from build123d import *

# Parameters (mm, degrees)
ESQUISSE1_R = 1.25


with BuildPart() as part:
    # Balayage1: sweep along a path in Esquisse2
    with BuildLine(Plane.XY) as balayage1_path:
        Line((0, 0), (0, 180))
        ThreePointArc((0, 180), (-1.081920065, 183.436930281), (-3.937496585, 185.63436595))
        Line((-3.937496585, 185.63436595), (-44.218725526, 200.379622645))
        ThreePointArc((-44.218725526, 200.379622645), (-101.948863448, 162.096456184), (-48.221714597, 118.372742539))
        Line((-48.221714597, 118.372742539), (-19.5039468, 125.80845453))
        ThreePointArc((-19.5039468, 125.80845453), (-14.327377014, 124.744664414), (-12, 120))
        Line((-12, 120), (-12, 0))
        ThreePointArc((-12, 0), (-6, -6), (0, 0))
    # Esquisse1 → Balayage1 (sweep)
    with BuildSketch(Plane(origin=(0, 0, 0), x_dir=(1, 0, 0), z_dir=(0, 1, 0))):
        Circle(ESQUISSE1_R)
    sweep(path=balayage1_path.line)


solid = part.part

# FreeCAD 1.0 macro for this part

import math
import FreeCAD as App
import Part
import Sketcher
Q = App.Units.Quantity

doc = App.newDocument("Part")
params = doc.addObject("Spreadsheet::Sheet", "Params")
for row, (alias, value) in enumerate([
    ("sketch1_diameter", "2.5 mm"),
    ("sketch2_radius", "6 mm"),
    ("sketch2_radius2", "43 mm"),
    ("sketch2_height", "180 mm"),
    ("sketch2_height2", "120 mm"),
], start=1):
    params.set(f"A{row}", alias)
    params.set(f"B{row}", "=" + value)
    params.setAlias(f"B{row}", alias)

body = doc.addObject("PartDesign::Body", "Body")

# Sketch on XZ plane
sketch1 = doc.addObject("Sketcher::SketchObject", "Sketch")
body.addObject(sketch1)
sketch1.AttachmentSupport = (doc.XZ_Plane, [""])
sketch1.MapMode = "FlatFace"
sketch1.addGeometry(Part.Circle(App.Vector(0, 0, 0), App.Vector(0, 0, 1), 1.25), False)
sketch1.addConstraint(Sketcher.Constraint("Coincident", 0, 3, -1, 1))
sketch1.addConstraint(Sketcher.Constraint("Diameter", 0, Q("2.5 mm")))
sketch1.setExpression("Constraints[1]", "Params.sketch1_diameter")

# Sketch on XY plane
sketch2 = doc.addObject("Sketcher::SketchObject", "Sketch001")
body.addObject(sketch2)
sketch2.AttachmentSupport = (doc.XY_Plane, [""])
sketch2.MapMode = "FlatFace"
sketch2.addGeometry(Part.LineSegment(App.Vector(0, 0, 0), App.Vector(0, 180, 0)), False)
sketch2.addGeometry(Part.ArcOfCircle(Part.Circle(App.Vector(-6, 180, 0), App.Vector(0, 0, 1), 6), math.radians(0), math.radians(69.894455)), False)
sketch2.addGeometry(Part.LineSegment(App.Vector(-3.937497, 185.634366, 0), App.Vector(-44.218726, 200.379623, 0)), False)
sketch2.addGeometry(Part.ArcOfCircle(Part.Circle(App.Vector(-59, 160, 0), App.Vector(0, 0, 1), 43), math.radians(69.894455), math.radians(284.516441)), False)
sketch2.addGeometry(Part.LineSegment(App.Vector(-48.221715, 118.372743, 0), App.Vector(-19.503947, 125.808455, 0)), False)
sketch2.addGeometry(Part.ArcOfCircle(Part.Circle(App.Vector(-18, 120, 0), App.Vector(0, 0, 1), 6), math.radians(0), math.radians(104.516441)), False)
sketch2.addGeometry(Part.LineSegment(App.Vector(-12, 120, 0), App.Vector(-12, 0, 0)), False)
sketch2.addGeometry(Part.ArcOfCircle(Part.Circle(App.Vector(-6, 0, 0), App.Vector(0, 0, 1), 6), math.radians(180), math.radians(360)), False)
sketch2.addConstraint(Sketcher.Constraint("Tangent", 0, 2, 1, 1))
sketch2.addConstraint(Sketcher.Constraint("Tangent", 1, 2, 2, 1))
sketch2.addConstraint(Sketcher.Constraint("Tangent", 2, 2, 3, 1))
sketch2.addConstraint(Sketcher.Constraint("Tangent", 3, 2, 4, 1))
sketch2.addConstraint(Sketcher.Constraint("Tangent", 4, 2, 5, 2))
sketch2.addConstraint(Sketcher.Constraint("Tangent", 5, 1, 6, 1))
sketch2.addConstraint(Sketcher.Constraint("Tangent", 6, 2, 7, 1))
sketch2.addConstraint(Sketcher.Constraint("Tangent", 7, 2, 0, 1))
sketch2.addConstraint(Sketcher.Constraint("Vertical", 0))
sketch2.addConstraint(Sketcher.Constraint("Vertical", 6))
sketch2.addConstraint(Sketcher.Constraint("Coincident", 7, 2, -1, 1))
sketch2.addConstraint(Sketcher.Constraint("Equal", 1, 5))
sketch2.addConstraint(Sketcher.Constraint("Equal", 5, 7))
sketch2.addConstraint(Sketcher.Constraint("Radius", 1, Q("6 mm")))
sketch2.addConstraint(Sketcher.Constraint("Radius", 3, Q("43 mm")))
sketch2.addConstraint(Sketcher.Constraint("DistanceY", 0, 1, 0, 2, Q("180 mm")))
sketch2.addConstraint(Sketcher.Constraint("DistanceY", 6, 2, 6, 1, Q("120 mm")))
sketch2.addConstraint(Sketcher.Constraint("DistanceX", 3, 3, -1, 1, Q("59 mm")))
sketch2.addConstraint(Sketcher.Constraint("DistanceY", -1, 1, 3, 3, Q("160 mm")))
sketch2.setExpression("Constraints[13]", "Params.sketch2_radius")
sketch2.setExpression("Constraints[14]", "Params.sketch2_radius2")
sketch2.setExpression("Constraints[15]", "Params.sketch2_height")
sketch2.setExpression("Constraints[16]", "Params.sketch2_height2")
doc.recompute()

additivepipe = doc.addObject("PartDesign::AdditivePipe", "AdditivePipe")
body.addObject(additivepipe)
additivepipe.Profile = sketch1
additivepipe.Spine = (sketch2, ["Edge1", "Edge2", "Edge3", "Edge4", "Edge5", "Edge6", "Edge7", "Edge8"])

doc.recompute()
